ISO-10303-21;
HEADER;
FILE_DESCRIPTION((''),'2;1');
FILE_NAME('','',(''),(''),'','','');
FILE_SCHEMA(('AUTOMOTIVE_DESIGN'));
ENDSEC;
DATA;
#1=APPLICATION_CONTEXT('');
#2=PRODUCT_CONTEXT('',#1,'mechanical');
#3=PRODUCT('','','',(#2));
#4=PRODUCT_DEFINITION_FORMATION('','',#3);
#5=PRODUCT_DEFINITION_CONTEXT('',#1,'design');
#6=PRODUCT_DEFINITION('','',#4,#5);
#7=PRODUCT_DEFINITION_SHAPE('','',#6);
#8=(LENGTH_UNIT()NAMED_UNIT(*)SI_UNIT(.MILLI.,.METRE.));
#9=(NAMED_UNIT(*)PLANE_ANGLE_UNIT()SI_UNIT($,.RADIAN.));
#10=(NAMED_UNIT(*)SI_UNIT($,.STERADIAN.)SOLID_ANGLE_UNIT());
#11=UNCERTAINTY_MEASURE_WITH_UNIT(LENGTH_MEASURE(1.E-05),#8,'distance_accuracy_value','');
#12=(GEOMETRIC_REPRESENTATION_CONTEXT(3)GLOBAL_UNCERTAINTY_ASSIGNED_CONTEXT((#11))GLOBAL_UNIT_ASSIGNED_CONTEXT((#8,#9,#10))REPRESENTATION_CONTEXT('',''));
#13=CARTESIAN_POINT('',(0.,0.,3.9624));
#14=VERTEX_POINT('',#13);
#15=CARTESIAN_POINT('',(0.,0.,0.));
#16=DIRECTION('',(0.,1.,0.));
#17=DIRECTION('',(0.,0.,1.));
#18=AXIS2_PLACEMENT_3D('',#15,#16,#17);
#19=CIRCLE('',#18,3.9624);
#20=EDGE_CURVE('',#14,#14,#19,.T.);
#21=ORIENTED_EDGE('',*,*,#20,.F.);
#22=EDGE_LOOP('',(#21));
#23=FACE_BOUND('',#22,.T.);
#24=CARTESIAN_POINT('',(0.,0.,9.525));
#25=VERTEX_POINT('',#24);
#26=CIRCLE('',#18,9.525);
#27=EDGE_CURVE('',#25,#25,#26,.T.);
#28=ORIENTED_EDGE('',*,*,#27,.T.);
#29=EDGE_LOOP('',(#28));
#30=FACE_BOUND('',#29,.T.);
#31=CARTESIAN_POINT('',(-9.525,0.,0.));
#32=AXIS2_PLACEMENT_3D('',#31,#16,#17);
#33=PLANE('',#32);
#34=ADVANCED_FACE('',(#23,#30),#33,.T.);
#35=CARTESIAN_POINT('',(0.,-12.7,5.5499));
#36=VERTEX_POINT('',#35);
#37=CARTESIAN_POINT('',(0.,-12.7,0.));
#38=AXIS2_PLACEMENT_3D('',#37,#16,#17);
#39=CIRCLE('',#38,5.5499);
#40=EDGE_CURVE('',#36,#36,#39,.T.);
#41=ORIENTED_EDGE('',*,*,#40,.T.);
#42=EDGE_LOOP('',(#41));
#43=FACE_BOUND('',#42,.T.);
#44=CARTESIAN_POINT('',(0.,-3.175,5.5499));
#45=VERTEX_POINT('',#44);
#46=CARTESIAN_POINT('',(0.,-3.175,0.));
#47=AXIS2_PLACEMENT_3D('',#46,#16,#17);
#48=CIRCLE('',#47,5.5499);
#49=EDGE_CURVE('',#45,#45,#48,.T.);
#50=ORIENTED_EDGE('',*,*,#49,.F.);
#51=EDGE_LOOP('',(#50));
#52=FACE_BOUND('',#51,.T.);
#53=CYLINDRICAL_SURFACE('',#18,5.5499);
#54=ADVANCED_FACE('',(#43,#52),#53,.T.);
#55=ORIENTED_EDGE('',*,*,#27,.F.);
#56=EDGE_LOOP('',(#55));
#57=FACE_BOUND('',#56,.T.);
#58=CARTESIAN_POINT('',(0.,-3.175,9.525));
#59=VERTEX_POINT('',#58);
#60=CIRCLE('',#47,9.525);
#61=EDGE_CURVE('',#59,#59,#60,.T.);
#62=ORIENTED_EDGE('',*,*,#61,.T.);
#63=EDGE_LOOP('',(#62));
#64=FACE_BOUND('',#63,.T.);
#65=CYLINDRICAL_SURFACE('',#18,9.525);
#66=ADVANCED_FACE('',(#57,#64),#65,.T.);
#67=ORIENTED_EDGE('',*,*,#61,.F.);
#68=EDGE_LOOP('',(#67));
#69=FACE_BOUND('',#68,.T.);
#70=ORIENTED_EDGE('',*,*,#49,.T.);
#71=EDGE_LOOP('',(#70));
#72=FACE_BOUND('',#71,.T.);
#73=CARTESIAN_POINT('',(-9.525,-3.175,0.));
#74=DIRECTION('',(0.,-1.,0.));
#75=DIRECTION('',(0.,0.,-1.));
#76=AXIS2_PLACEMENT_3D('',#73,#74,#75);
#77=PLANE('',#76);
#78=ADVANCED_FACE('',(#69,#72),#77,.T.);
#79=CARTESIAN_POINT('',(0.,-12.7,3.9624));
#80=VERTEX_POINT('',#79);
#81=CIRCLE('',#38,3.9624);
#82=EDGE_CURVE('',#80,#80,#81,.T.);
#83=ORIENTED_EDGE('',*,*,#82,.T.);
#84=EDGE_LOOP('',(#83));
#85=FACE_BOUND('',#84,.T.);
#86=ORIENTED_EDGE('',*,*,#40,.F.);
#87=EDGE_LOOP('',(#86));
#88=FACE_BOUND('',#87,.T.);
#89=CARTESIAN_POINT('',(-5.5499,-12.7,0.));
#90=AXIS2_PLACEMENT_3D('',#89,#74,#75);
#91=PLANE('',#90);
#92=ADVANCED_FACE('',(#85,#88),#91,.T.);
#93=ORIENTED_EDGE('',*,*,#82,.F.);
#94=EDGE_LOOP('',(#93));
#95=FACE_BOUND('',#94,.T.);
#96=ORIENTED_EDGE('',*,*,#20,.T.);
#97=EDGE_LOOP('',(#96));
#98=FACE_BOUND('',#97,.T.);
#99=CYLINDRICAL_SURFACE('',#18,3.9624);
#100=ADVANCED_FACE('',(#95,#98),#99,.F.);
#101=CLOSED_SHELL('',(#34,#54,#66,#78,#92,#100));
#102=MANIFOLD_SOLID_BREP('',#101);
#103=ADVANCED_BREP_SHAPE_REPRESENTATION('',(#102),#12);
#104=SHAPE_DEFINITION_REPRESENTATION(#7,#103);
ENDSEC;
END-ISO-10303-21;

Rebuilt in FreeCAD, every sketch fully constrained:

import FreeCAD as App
import Part
import Sketcher
from FreeCAD import Vector
Q = App.Units.Quantity

doc = App.newDocument("Part")
params = doc.addObject("Spreadsheet::Sheet", "Params")
for row, (alias, value) in enumerate([
    ("sketch1_height", "0.5 in"),
    ("sketch1_width", "0.219 in"),
    ("sketch1_width2", "0.0625 in"),
    ("sketch1_height2", "0.125 in"),
    ("revolution_angle", "360 deg"),
], start=1):
    params.set(f"A{row}", alias)
    params.set(f"B{row}", "=" + value)
    params.setAlias(f"B{row}", alias)

body = doc.addObject("PartDesign::Body", "Body")

# Sketch on XY plane
sketch1 = body.newObject("Sketcher::SketchObject", "Sketch")
sketch1.AttachmentSupport = (doc.getObject("XY_Plane"), [""])
sketch1.MapMode = "FlatFace"
sketch1.addGeometry(Part.LineSegment(Vector(-4, 0, 0), Vector(-9.5, 0, 0)), False)
sketch1.addGeometry(Part.LineSegment(Vector(-9.5, 0, 0), Vector(-9.5, -3.2, 0)), False)
sketch1.addGeometry(Part.LineSegment(Vector(-9.5, -3.2, 0), Vector(-5.5, -3.2, 0)), False)
sketch1.addGeometry(Part.LineSegment(Vector(-5.5, -3.2, 0), Vector(-5.5, -12.7, 0)), False)
sketch1.addGeometry(Part.LineSegment(Vector(-5.5, -12.7, 0), Vector(-4, -12.7, 0)), False)
sketch1.addGeometry(Part.LineSegment(Vector(-4, -12.7, 0), Vector(-4, 0, 0)), False)
sketch1.addConstraint(Sketcher.Constraint("Coincident", 0, 2, 1, 1))
sketch1.addConstraint(Sketcher.Constraint("Coincident", 1, 2, 2, 1))
sketch1.addConstraint(Sketcher.Constraint("Coincident", 2, 2, 3, 1))
sketch1.addConstraint(Sketcher.Constraint("Coincident", 3, 2, 4, 1))
sketch1.addConstraint(Sketcher.Constraint("Coincident", 4, 2, 5, 1))
sketch1.addConstraint(Sketcher.Constraint("Coincident", 5, 2, 0, 1))
sketch1.addConstraint(Sketcher.Constraint("Horizontal", 0))
sketch1.addConstraint(Sketcher.Constraint("Vertical", 1))
sketch1.addConstraint(Sketcher.Constraint("Horizontal", 2))
sketch1.addConstraint(Sketcher.Constraint("Vertical", 3))
sketch1.addConstraint(Sketcher.Constraint("Horizontal", 4))
sketch1.addConstraint(Sketcher.Constraint("Vertical", 5))
sketch1.addConstraint(Sketcher.Constraint("PointOnObject", 0, 2, -1))
sketch1.addConstraint(Sketcher.Constraint("DistanceY", 5, 1, 5, 2, Q("0.5 in")))
sketch1.addConstraint(Sketcher.Constraint("DistanceX", 0, 2, 0, 1, Q("0.219 in")))
sketch1.addConstraint(Sketcher.Constraint("DistanceX", 4, 1, 4, 2, Q("0.0625 in")))
sketch1.addConstraint(Sketcher.Constraint("DistanceY", 1, 2, 1, 1, Q("0.125 in")))
sketch1.addConstraint(Sketcher.Constraint("DistanceX", 0, 2, -1, 1, Q("0.375 in")))
sketch1.setExpression("Constraints[13]", "Params.sketch1_height")
sketch1.setExpression("Constraints[14]", "Params.sketch1_width")
sketch1.setExpression("Constraints[15]", "Params.sketch1_width2")
sketch1.setExpression("Constraints[16]", "Params.sketch1_height2")
revolution = body.newObject("PartDesign::Revolution", "Revolution")
revolution.Profile = sketch1
revolution.ReferenceAxis = (sketch1, ["V_Axis"])
revolution.setExpression("Angle", "Params.revolution_angle")

doc.recompute()
